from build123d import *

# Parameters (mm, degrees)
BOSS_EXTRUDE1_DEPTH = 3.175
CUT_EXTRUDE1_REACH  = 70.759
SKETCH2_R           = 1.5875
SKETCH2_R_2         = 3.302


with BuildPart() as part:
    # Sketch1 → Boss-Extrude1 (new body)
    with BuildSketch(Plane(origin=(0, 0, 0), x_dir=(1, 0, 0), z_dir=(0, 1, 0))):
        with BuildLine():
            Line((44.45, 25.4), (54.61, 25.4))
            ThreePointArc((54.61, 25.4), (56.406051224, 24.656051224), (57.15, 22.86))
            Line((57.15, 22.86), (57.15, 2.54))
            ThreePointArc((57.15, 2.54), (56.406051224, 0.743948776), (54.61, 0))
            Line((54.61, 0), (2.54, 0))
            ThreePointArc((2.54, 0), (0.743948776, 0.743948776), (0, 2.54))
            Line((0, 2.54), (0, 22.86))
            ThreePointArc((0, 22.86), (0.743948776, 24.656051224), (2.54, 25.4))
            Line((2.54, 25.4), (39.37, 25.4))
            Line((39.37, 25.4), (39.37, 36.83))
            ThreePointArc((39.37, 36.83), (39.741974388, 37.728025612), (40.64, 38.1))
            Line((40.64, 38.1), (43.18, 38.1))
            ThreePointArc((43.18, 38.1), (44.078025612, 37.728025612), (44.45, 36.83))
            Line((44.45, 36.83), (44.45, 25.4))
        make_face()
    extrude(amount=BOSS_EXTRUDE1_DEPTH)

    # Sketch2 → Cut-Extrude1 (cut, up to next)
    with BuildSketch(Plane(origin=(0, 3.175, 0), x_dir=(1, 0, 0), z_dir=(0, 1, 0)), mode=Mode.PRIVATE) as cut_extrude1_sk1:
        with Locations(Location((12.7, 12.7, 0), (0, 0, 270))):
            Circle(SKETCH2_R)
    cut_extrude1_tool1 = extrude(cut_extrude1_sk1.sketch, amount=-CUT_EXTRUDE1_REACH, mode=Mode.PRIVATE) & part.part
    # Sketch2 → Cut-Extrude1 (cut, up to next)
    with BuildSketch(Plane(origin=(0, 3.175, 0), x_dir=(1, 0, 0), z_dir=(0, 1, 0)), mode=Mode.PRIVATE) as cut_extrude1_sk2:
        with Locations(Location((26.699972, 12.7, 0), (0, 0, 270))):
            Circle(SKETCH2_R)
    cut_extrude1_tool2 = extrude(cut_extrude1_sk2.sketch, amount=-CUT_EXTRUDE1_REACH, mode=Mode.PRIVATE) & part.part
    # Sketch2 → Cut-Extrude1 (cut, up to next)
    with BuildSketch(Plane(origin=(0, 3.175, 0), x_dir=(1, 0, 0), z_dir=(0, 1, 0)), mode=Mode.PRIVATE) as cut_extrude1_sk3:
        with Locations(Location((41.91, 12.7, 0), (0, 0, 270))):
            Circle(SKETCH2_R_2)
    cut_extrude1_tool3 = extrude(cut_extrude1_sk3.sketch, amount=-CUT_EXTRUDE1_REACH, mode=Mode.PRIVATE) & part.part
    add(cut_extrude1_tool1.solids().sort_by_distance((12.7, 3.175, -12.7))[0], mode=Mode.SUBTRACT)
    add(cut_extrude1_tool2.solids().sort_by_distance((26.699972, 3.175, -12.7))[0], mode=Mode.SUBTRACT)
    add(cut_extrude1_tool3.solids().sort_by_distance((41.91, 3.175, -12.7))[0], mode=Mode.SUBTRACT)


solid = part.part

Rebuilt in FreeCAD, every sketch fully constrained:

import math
import FreeCAD as App
import Part
import Sketcher
Q = App.Units.Quantity

doc = App.newDocument("Part")
body = doc.addObject("PartDesign::Body", "Body")

# Sketch on XZ plane
sketch1 = body.newObject("Sketcher::SketchObject", "Sketch")
sketch1.AttachmentSupport = (doc.getObject("XZ_Plane"), [""])
sketch1.MapMode = "FlatFace"
sketch1.addGeometry(Part.LineSegment(App.Vector(54.61, -25.4, 0), App.Vector(44.45, -25.4, 0)), False)
sketch1.addGeometry(Part.LineSegment(App.Vector(44.45, -25.4, 0), App.Vector(44.45, -36.83, 0)), False)
sketch1.addGeometry(Part.ArcOfCircle(Part.Circle(App.Vector(43.18, -36.83, 0), App.Vector(0, 0, 1), 1.27), math.radians(-90), math.radians(0)), False)
sketch1.addGeometry(Part.LineSegment(App.Vector(43.18, -38.1, 0), App.Vector(40.64, -38.1, 0)), False)
sketch1.addGeometry(Part.ArcOfCircle(Part.Circle(App.Vector(40.64, -36.83, 0), App.Vector(0, 0, 1), 1.27), math.radians(180), math.radians(270)), False)
sketch1.addGeometry(Part.LineSegment(App.Vector(39.37, -36.83, 0), App.Vector(39.37, -25.4, 0)), False)
sketch1.addGeometry(Part.LineSegment(App.Vector(39.37, -25.4, 0), App.Vector(2.54, -25.4, 0)), False)
sketch1.addGeometry(Part.ArcOfCircle(Part.Circle(App.Vector(2.54, -22.86, 0), App.Vector(0, 0, 1), 2.54), math.radians(-180), math.radians(-90)), False)
sketch1.addGeometry(Part.LineSegment(App.Vector(0, -22.86, 0), App.Vector(0, -2.54, 0)), False)
sketch1.addGeometry(Part.ArcOfCircle(Part.Circle(App.Vector(2.54, -2.54, 0), App.Vector(0, 0, 1), 2.54), math.radians(90), math.radians(180)), False)
sketch1.addGeometry(Part.LineSegment(App.Vector(2.54, 0, 0), App.Vector(54.61, 0, 0)), False)
sketch1.addGeometry(Part.ArcOfCircle(Part.Circle(App.Vector(54.61, -2.54, 0), App.Vector(0, 0, 1), 2.54), math.radians(0), math.radians(90)), False)
sketch1.addGeometry(Part.LineSegment(App.Vector(57.15, -2.54, 0), App.Vector(57.15, -22.86, 0)), False)
sketch1.addGeometry(Part.ArcOfCircle(Part.Circle(App.Vector(54.61, -22.86, 0), App.Vector(0, 0, 1), 2.54), math.radians(-90), math.radians(0)), False)
sketch1.addConstraint(Sketcher.Constraint("Coincident", 0, 2, 1, 1))
sketch1.addConstraint(Sketcher.Constraint("Tangent", 1, 2, 2, 2))
sketch1.addConstraint(Sketcher.Constraint("Tangent", 2, 1, 3, 1))
sketch1.addConstraint(Sketcher.Constraint("Tangent", 3, 2, 4, 2))
sketch1.addConstraint(Sketcher.Constraint("Tangent", 4, 1, 5, 1))
sketch1.addConstraint(Sketcher.Constraint("Coincident", 5, 2, 6, 1))
sketch1.addConstraint(Sketcher.Constraint("Tangent", 6, 2, 7, 2))
sketch1.addConstraint(Sketcher.Constraint("Tangent", 7, 1, 8, 1))
sketch1.addConstraint(Sketcher.Constraint("Tangent", 8, 2, 9, 2))
sketch1.addConstraint(Sketcher.Constraint("Tangent", 9, 1, 10, 1))
sketch1.addConstraint(Sketcher.Constraint("Tangent", 10, 2, 11, 2))
sketch1.addConstraint(Sketcher.Constraint("Tangent", 11, 1, 12, 1))
sketch1.addConstraint(Sketcher.Constraint("Tangent", 12, 2, 13, 2))
sketch1.addConstraint(Sketcher.Constraint("Tangent", 13, 1, 0, 1))
sketch1.addConstraint(Sketcher.Constraint("Horizontal", 0))
sketch1.addConstraint(Sketcher.Constraint("Vertical", 1))
sketch1.addConstraint(Sketcher.Constraint("Horizontal", 3))
sketch1.addConstraint(Sketcher.Constraint("Vertical", 5))
sketch1.addConstraint(Sketcher.Constraint("Horizontal", 6))
sketch1.addConstraint(Sketcher.Constraint("Vertical", 8))
sketch1.addConstraint(Sketcher.Constraint("Horizontal", 10))
sketch1.addConstraint(Sketcher.Constraint("Vertical", 12))
sketch1.addConstraint(Sketcher.Constraint("Equal", 2, 4))
sketch1.addConstraint(Sketcher.Constraint("Equal", 7, 9))
sketch1.addConstraint(Sketcher.Constraint("Equal", 9, 11))
sketch1.addConstraint(Sketcher.Constraint("Equal", 11, 13))
sketch1.addConstraint(Sketcher.Constraint("PointOnObject", 7, 1, -2))
sketch1.addConstraint(Sketcher.Constraint("PointOnObject", 9, 1, -1))
sketch1.addConstraint(Sketcher.Constraint("Horizontal", 7, 3, 13, 3))
sketch1.addConstraint(Sketcher.Constraint("Radius", 7, Q("0.1 in")))
sketch1.addConstraint(Sketcher.Constraint("Radius", 2, Q("0.05 in")))
sketch1.addConstraint(Sketcher.Constraint("DistanceX", 0, 2, 0, 1, Q("0.4 in")))
sketch1.addConstraint(Sketcher.Constraint("DistanceX", 3, 2, 3, 1, Q("0.1 in")))
sketch1.addConstraint(Sketcher.Constraint("DistanceY", 8, 1, 8, 2, Q("0.8 in")))
sketch1.addConstraint(Sketcher.Constraint("DistanceX", 6, 2, 6, 1, Q("1.45 in")))
sketch1.addConstraint(Sketcher.Constraint("DistanceY", 1, 2, 1, 1, Q("0.45 in")))
pad1 = body.newObject("PartDesign::Pad", "Pad")
pad1.Profile = sketch1
pad1.Length = Q("0.125 in")
pad1.Reversed = True

# Sketch on XZ plane
sketch2 = body.newObject("Sketcher::SketchObject", "Sketch001")
sketch2.AttachmentSupport = (doc.getObject("XZ_Plane"), [""])
sketch2.MapMode = "FlatFace"
sketch2.AttachmentOffset = App.Placement(App.Vector(0, 0, -0.125 * 25.4), App.Rotation())
sketch2.addGeometry(Part.Circle(App.Vector(12.7, -12.7, 0), App.Vector(0, 0, 1), 1.5875), False)
sketch2.addConstraint(Sketcher.Constraint("Diameter", 0, Q("0.125 in")))
sketch2.addConstraint(Sketcher.Constraint("DistanceX", -1, 1, 0, 3, Q("0.5 in")))
sketch2.addConstraint(Sketcher.Constraint("DistanceY", 0, 3, -1, 1, Q("0.5 in")))
pocket1 = body.newObject("PartDesign::Pocket", "Pocket")
pocket1.Profile = sketch2
pocket1.Type = "UpToFirst"
pocket1.Reversed = True

# Sketch on XZ plane
sketch3 = body.newObject("Sketcher::SketchObject", "Sketch002")
sketch3.AttachmentSupport = (doc.getObject("XZ_Plane"), [""])
sketch3.MapMode = "FlatFace"
sketch3.AttachmentOffset = App.Placement(App.Vector(0, 0, -0.125 * 25.4), App.Rotation())
sketch3.addGeometry(Part.Circle(App.Vector(26.699972, -12.7, 0), App.Vector(0, 0, 1), 1.5875), False)
sketch3.addConstraint(Sketcher.Constraint("Diameter", 0, Q("0.125 in")))
sketch3.addConstraint(Sketcher.Constraint("DistanceY", 0, 3, -1, 1, Q("0.5 in")))
sketch3.addConstraint(Sketcher.Constraint("DistanceX", -1, 1, 0, 3, 26.699972))
pocket2 = body.newObject("PartDesign::Pocket", "Pocket001")
pocket2.Profile = sketch3
pocket2.Type = "UpToFirst"
pocket2.Reversed = True

# Sketch on XZ plane
sketch4 = body.newObject("Sketcher::SketchObject", "Sketch003")
sketch4.AttachmentSupport = (doc.getObject("XZ_Plane"), [""])
sketch4.MapMode = "FlatFace"
sketch4.AttachmentOffset = App.Placement(App.Vector(0, 0, -0.125 * 25.4), App.Rotation())
sketch4.addGeometry(Part.Circle(App.Vector(41.91, -12.7, 0), App.Vector(0, 0, 1), 3.302), False)
sketch4.addConstraint(Sketcher.Constraint("Diameter", 0, Q("0.26 in")))
sketch4.addConstraint(Sketcher.Constraint("DistanceY", 0, 3, -1, 1, Q("0.5 in")))
sketch4.addConstraint(Sketcher.Constraint("DistanceX", -1, 1, 0, 3, Q("1.65 in")))
pocket3 = body.newObject("PartDesign::Pocket", "Pocket002")
pocket3.Profile = sketch4
pocket3.Type = "UpToFirst"
pocket3.Reversed = True

doc.recompute()
